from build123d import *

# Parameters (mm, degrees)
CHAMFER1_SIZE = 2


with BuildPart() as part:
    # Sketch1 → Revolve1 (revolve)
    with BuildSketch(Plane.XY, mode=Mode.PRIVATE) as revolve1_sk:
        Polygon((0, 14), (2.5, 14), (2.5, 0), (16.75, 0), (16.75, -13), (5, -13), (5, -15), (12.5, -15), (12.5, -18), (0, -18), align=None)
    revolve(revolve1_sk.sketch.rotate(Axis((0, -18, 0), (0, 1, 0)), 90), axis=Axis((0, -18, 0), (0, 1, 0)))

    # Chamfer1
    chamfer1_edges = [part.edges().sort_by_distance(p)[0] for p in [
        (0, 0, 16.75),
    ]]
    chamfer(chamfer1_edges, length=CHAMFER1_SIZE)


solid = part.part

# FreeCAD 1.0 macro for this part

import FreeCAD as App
import Part
import Sketcher
Q = App.Units.Quantity


def edges_at(feature, points):
    """Names of the edges that pass closest to the given points."""
    edges = feature.Shape.Edges
    near = lambda p: min(range(len(edges)), key=lambda i: edges[i].distToShape(Part.Vertex(*p))[0])
    return sorted({f"Edge{near(p) + 1}" for p in points})


def add_polygon(sketch, points):
    """Adds a closed chain of lines whose ends are joined by coincident constraints."""
    first, n = sketch.GeometryCount, len(points)
    for a, b in zip(points, points[1:] + points[:1]):
        sketch.addGeometry(Part.LineSegment(App.Vector(*a, 0), App.Vector(*b, 0)), False)
    for i in range(n):
        sketch.addConstraint(Sketcher.Constraint("Coincident", first + i, 2, first + (i + 1) % n, 1))

doc = App.newDocument("Part")
body = doc.addObject("PartDesign::Body", "Body")

# Sketch on XY plane
sketch1 = body.newObject("Sketcher::SketchObject", "Sketch")
sketch1.AttachmentSupport = (doc.getObject("XY_Plane"), [""])
sketch1.MapMode = "FlatFace"
add_polygon(sketch1, [(2.5, 14), (0, 14), (0, -18), (12.5, -18), (12.5, -15), (5, -15), (5, -13), (16.8, -13), (16.8, 0), (2.5, 0)])  # lines 0-9
sketch1.addConstraint([
    Sketcher.Constraint("Horizontal", 0),
    Sketcher.Constraint("Vertical", 1),
    Sketcher.Constraint("Horizontal", 2),
    Sketcher.Constraint("Vertical", 3),
    Sketcher.Constraint("Horizontal", 4),
    Sketcher.Constraint("Vertical", 5),
    Sketcher.Constraint("Horizontal", 6),
    Sketcher.Constraint("Vertical", 7),
    Sketcher.Constraint("Horizontal", 8),
    Sketcher.Constraint("Vertical", 9),
    Sketcher.Constraint("PointOnObject", 0, 2, -2),
    Sketcher.Constraint("PointOnObject", 7, 2, -1),
    Sketcher.Constraint("DistanceY", 1, 2, 1, 1, Q("32 mm")),
    Sketcher.Constraint("DistanceY", 3, 1, 3, 2, Q("3 mm")),
    Sketcher.Constraint("DistanceY", 5, 1, 5, 2, Q("2 mm")),
    Sketcher.Constraint("DistanceY", 7, 1, 7, 2, Q("13 mm")),
    Sketcher.Constraint("DistanceX", 0, 2, 0, 1, Q("2.5 mm")),
    Sketcher.Constraint("DistanceX", 2, 1, 2, 2, Q("12.5 mm")),
    Sketcher.Constraint("DistanceX", 4, 2, 4, 1, Q("7.5 mm")),
    Sketcher.Constraint("DistanceX", 6, 1, 6, 2, Q("11.75 mm")),
])
revolution = body.newObject("PartDesign::Revolution", "Revolution")
revolution.Profile = sketch1
revolution.ReferenceAxis = (sketch1, ["V_Axis"])
revolution.Angle = 360
doc.recompute()

chamfer = body.newObject("PartDesign::Chamfer", "Chamfer")
chamfer.Base = (revolution, edges_at(revolution, [(0, 0, 16.75)]))
chamfer.Size = 2

doc.recompute()
